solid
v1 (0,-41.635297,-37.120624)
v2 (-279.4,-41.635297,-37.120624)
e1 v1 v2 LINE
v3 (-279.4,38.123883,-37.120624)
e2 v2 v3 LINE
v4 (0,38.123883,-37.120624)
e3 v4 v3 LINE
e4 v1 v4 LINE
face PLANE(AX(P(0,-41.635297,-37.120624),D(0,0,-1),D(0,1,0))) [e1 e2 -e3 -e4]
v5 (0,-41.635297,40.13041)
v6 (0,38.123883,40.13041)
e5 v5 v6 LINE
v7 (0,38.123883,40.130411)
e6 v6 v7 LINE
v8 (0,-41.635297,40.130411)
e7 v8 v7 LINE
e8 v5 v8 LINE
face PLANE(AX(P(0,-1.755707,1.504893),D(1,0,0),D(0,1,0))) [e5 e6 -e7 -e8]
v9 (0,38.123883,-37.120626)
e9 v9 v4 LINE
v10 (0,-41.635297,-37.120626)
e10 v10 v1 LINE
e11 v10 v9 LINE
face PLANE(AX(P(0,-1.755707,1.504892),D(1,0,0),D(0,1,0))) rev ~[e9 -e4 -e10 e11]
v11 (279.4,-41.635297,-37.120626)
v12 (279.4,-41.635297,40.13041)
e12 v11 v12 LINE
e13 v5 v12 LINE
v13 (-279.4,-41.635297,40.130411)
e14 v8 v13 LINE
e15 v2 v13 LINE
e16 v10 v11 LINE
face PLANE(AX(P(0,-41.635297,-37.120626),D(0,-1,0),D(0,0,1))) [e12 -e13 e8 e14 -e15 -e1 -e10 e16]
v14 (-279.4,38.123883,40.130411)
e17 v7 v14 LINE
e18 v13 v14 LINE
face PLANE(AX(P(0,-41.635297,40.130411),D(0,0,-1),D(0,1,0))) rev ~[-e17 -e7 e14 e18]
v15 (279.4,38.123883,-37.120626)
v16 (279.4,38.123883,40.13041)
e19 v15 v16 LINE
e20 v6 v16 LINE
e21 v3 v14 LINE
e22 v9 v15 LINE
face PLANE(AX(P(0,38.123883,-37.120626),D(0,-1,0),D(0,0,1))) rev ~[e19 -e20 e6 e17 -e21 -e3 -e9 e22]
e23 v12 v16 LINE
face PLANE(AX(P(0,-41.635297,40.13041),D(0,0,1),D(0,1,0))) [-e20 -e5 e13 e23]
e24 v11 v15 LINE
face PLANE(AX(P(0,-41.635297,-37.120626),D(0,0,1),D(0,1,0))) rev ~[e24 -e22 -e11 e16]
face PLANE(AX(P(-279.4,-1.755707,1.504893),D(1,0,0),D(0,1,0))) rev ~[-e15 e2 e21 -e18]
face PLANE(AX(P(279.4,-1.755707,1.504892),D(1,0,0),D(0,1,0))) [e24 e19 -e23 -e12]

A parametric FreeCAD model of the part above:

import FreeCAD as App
import Part
import Sketcher
Q = App.Units.Quantity

doc = App.newDocument("Part")
body = doc.addObject("PartDesign::Body", "Body")

# Sketch on YZ plane
sketch1 = body.newObject("Sketcher::SketchObject", "Sketch")
sketch1.AttachmentSupport = (doc.getObject("YZ_Plane"), [""])
sketch1.MapMode = "FlatFace"
sketch1.addGeometry([
    Part.LineSegment(App.Vector(-41.635297, 40.130411, 0), App.Vector(-41.635297, -37.120624, 0)),
    Part.LineSegment(App.Vector(-41.635297, -37.120624, 0), App.Vector(38.123883, -37.120624, 0)),
    Part.LineSegment(App.Vector(38.123883, -37.120624, 0), App.Vector(38.123883, 40.130411, 0)),
    Part.LineSegment(App.Vector(38.123883, 40.130411, 0), App.Vector(-41.635297, 40.130411, 0)),
], False)
sketch1.addConstraint([
    Sketcher.Constraint("Coincident", 0, 2, 1, 1),
    Sketcher.Constraint("Coincident", 1, 2, 2, 1),
    Sketcher.Constraint("Coincident", 2, 2, 3, 1),
    Sketcher.Constraint("Coincident", 3, 2, 0, 1),
    Sketcher.Constraint("Vertical", 0),
    Sketcher.Constraint("Horizontal", 1),
    Sketcher.Constraint("Vertical", 2),
    Sketcher.Constraint("Horizontal", 3),
    Sketcher.Constraint("DistanceX", 1, 1, 1, 2, 79.75918),
    Sketcher.Constraint("DistanceY", 0, 2, 0, 1, 77.251035),
    Sketcher.Constraint("DistanceY", -1, 1, 2, 2, 40.130411),
    Sketcher.Constraint("DistanceX", 0, 2, -1, 1, 41.635297),
])
pad1 = body.newObject("PartDesign::Pad", "Pad")
pad1.Profile = sketch1
pad1.Length = Q("11 in")
pad1.Reversed = True

# Sketch on YZ plane
sketch2 = body.newObject("Sketcher::SketchObject", "Sketch001")
sketch2.AttachmentSupport = (doc.getObject("YZ_Plane"), [""])
sketch2.MapMode = "FlatFace"
sketch2.addGeometry([
    Part.LineSegment(App.Vector(-41.635297, 40.13041, 0), App.Vector(-41.635297, -37.120626, 0)),
    Part.LineSegment(App.Vector(-41.635297, -37.120626, 0), App.Vector(38.123883, -37.120626, 0)),
    Part.LineSegment(App.Vector(38.123883, -37.120626, 0), App.Vector(38.123883, 40.13041, 0)),
    Part.LineSegment(App.Vector(38.123883, 40.13041, 0), App.Vector(-41.635297, 40.13041, 0)),
], False)
sketch2.addConstraint([
    Sketcher.Constraint("Coincident", 0, 2, 1, 1),
    Sketcher.Constraint("Coincident", 1, 2, 2, 1),
    Sketcher.Constraint("Coincident", 2, 2, 3, 1),
    Sketcher.Constraint("Coincident", 3, 2, 0, 1),
    Sketcher.Constraint("Vertical", 0),
    Sketcher.Constraint("Horizontal", 1),
    Sketcher.Constraint("Vertical", 2),
    Sketcher.Constraint("Horizontal", 3),
    Sketcher.Constraint("DistanceX", 1, 1, 1, 2, 79.75918),
    Sketcher.Constraint("DistanceY", 0, 2, 0, 1, 77.251036),
    Sketcher.Constraint("DistanceY", -1, 1, 2, 2, 40.13041),
    Sketcher.Constraint("DistanceX", 0, 2, -1, 1, 41.635297),
])
pad2 = body.newObject("PartDesign::Pad", "Pad001")
pad2.Profile = sketch2
pad2.Length = Q("11 in")

doc.recompute()
